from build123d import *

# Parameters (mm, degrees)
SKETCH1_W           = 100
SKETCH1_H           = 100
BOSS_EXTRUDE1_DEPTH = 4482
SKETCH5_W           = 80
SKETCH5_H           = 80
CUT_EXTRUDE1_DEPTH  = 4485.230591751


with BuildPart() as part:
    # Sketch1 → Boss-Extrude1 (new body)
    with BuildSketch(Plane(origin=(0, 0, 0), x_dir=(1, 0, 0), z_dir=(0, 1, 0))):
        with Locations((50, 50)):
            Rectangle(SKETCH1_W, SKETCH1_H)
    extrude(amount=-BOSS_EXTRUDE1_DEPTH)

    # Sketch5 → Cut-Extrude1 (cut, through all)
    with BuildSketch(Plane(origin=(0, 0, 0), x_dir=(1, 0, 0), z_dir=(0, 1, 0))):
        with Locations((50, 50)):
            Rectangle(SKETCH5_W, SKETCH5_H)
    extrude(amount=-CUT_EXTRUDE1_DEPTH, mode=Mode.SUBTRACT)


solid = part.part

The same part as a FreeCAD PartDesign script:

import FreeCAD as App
import Part
import Sketcher
Q = App.Units.Quantity


def add_polygon(sketch, points):
    """Adds a closed chain of lines whose ends are joined by coincident constraints."""
    first, n = sketch.GeometryCount, len(points)
    for a, b in zip(points, points[1:] + points[:1]):
        sketch.addGeometry(Part.LineSegment(App.Vector(*a, 0), App.Vector(*b, 0)), False)
    for i in range(n):
        sketch.addConstraint(Sketcher.Constraint("Coincident", first + i, 2, first + (i + 1) % n, 1))

doc = App.newDocument("Part")
body = doc.addObject("PartDesign::Body", "Body")

sketch1 = doc.addObject("Sketcher::SketchObject", "Sketch")
body.addObject(sketch1)
sketch1.AttachmentSupport = (doc.XZ_Plane, [""])
sketch1.MapMode = "FlatFace"
add_polygon(sketch1, [(0, -100), (0, 0), (100, 0), (100, -100)])
sketch1.addConstraint(Sketcher.Constraint("Vertical", 0))
sketch1.addConstraint(Sketcher.Constraint("Horizontal", 1))
sketch1.addConstraint(Sketcher.Constraint("Vertical", 2))
sketch1.addConstraint(Sketcher.Constraint("Horizontal", 3))
sketch1.addConstraint(Sketcher.Constraint("Coincident", 0, 2, -1, 1))
sketch1.addConstraint(Sketcher.Constraint("Equal", 3, 0))
sketch1.addConstraint(Sketcher.Constraint("DistanceX", 1, 1, 1, 2, Q("100 mm")))
pad1 = doc.addObject("PartDesign::Pad", "Pad")
body.addObject(pad1)
pad1.Profile = sketch1
pad1.Length = 4482

sketch2 = doc.addObject("Sketcher::SketchObject", "Sketch001")
body.addObject(sketch2)
sketch2.AttachmentSupport = (doc.XZ_Plane, [""])
sketch2.MapMode = "FlatFace"
add_polygon(sketch2, [(10, -90), (10, -10), (90, -10), (90, -90)])
sketch2.addConstraint(Sketcher.Constraint("Vertical", 0))
sketch2.addConstraint(Sketcher.Constraint("Horizontal", 1))
sketch2.addConstraint(Sketcher.Constraint("Vertical", 2))
sketch2.addConstraint(Sketcher.Constraint("Horizontal", 3))
sketch2.addConstraint(Sketcher.Constraint("Equal", 3, 0))
sketch2.addConstraint(Sketcher.Constraint("DistanceX", 1, 1, 1, 2, Q("80 mm")))
sketch2.addConstraint(Sketcher.Constraint("DistanceX", -1, 1, 0, 2, Q("10 mm")))
sketch2.addConstraint(Sketcher.Constraint("DistanceY", 0, 2, -1, 1, Q("10 mm")))
pocket1 = doc.addObject("PartDesign::Pocket", "Pocket")
body.addObject(pocket1)
pocket1.Profile = sketch2
pocket1.Type = "ThroughAll"
pocket1.Reversed = True

doc.recompute()
